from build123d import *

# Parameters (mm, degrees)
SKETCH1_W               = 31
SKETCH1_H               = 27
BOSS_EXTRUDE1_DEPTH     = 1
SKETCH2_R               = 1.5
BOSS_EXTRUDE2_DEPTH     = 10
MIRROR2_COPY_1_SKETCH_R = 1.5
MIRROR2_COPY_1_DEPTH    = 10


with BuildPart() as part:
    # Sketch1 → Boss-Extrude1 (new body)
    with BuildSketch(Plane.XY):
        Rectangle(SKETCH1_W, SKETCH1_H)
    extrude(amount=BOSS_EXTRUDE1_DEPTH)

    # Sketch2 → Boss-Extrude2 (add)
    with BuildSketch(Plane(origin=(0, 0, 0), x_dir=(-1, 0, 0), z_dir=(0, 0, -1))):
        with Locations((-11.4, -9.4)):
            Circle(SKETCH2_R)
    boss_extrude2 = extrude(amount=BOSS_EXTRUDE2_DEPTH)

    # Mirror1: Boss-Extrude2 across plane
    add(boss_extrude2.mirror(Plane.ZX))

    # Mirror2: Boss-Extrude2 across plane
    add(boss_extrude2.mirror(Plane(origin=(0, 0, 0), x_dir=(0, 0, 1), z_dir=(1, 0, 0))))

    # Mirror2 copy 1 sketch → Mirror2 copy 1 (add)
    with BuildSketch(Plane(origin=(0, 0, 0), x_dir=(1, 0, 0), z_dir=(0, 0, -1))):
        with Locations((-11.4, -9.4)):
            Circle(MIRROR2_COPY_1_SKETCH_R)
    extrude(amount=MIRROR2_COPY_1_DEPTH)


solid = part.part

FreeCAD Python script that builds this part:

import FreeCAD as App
import Part
import Sketcher

V = App.Vector


def add_polygon(sketch, points):
    """Adds a closed chain of lines whose ends are joined by coincident constraints."""
    first, n = sketch.GeometryCount, len(points)
    for a, b in zip(points, points[1:] + points[:1]):
        sketch.addGeometry(Part.LineSegment(App.Vector(*a, 0), App.Vector(*b, 0)), False)
    for i in range(n):
        sketch.addConstraint(Sketcher.Constraint("Coincident", first + i, 2, first + (i + 1) % n, 1))

doc = App.newDocument("Part")
body = doc.addObject("PartDesign::Body", "Body")

sketch1 = body.newObject("Sketcher::SketchObject", "Sketch")
sketch1.AttachmentSupport = (doc.getObject("XY_Plane"), [""])
sketch1.MapMode = "FlatFace"
add_polygon(sketch1, [(-16, 14), (-16, -14), (16, -14), (16, 14)])
sketch1.addConstraint([
    Sketcher.Constraint("Vertical", 0),
    Sketcher.Constraint("Horizontal", 1),
    Sketcher.Constraint("Vertical", 2),
    Sketcher.Constraint("Horizontal", 3),
    Sketcher.Constraint("Symmetric", 0, 2, 2, 2, -1, 1),
    Sketcher.Constraint("DistanceX", 1, 1, 1, 2, 31.0),
    Sketcher.Constraint("DistanceY", 0, 2, 0, 1, 27.0),
])
pad1 = body.newObject("PartDesign::Pad", "Pad")
pad1.Profile = sketch1
pad1.Length = 1

sketch2 = body.newObject("Sketcher::SketchObject", "Sketch001")
sketch2.AttachmentSupport = (doc.getObject("XY_Plane"), [""])
sketch2.MapMode = "FlatFace"
sketch2.addGeometry(Part.Circle(V(11.4, -9.4, 0), V(0, 0, 1), 1.5), False)
sketch2.addConstraint([
    Sketcher.Constraint("Diameter", 0, 3.0),
    Sketcher.Constraint("DistanceX", -1, 1, 0, 3, 11.4),
    Sketcher.Constraint("DistanceY", 0, 3, -1, 1, 9.4),
])
pad2 = body.newObject("PartDesign::Pad", "Pad001")
pad2.Profile = sketch2
pad2.Length = 10
pad2.Reversed = True
doc.recompute()

mirrored = body.newObject("PartDesign::Mirrored", "Mirrored")
mirrored.Originals = [pad2]
mirrored.MirrorPlane = (doc.getObject("XZ_Plane"), [""])
body.Tip = mirrored
doc.recompute()

mirrored2 = body.newObject("PartDesign::Mirrored", "Mirrored001")
mirrored2.Originals = [pad2]
mirrored2.MirrorPlane = (doc.getObject("YZ_Plane"), [""])
body.Tip = mirrored2

sketch3 = body.newObject("Sketcher::SketchObject", "Sketch002")
sketch3.AttachmentSupport = (doc.getObject("XY_Plane"), [""])
sketch3.MapMode = "FlatFace"
sketch3.addGeometry(Part.Circle(V(-11.4, 9.4, 0), V(0, 0, 1), 1.5), False)
sketch3.addConstraint([
    Sketcher.Constraint("Diameter", 0, 3.0),
    Sketcher.Constraint("DistanceX", 0, 3, -1, 1, 11.4),
    Sketcher.Constraint("DistanceY", -1, 1, 0, 3, 9.4),
])
pad3 = body.newObject("PartDesign::Pad", "Pad002")
pad3.Profile = sketch3
pad3.Length = 10
pad3.Reversed = True

doc.recompute()
